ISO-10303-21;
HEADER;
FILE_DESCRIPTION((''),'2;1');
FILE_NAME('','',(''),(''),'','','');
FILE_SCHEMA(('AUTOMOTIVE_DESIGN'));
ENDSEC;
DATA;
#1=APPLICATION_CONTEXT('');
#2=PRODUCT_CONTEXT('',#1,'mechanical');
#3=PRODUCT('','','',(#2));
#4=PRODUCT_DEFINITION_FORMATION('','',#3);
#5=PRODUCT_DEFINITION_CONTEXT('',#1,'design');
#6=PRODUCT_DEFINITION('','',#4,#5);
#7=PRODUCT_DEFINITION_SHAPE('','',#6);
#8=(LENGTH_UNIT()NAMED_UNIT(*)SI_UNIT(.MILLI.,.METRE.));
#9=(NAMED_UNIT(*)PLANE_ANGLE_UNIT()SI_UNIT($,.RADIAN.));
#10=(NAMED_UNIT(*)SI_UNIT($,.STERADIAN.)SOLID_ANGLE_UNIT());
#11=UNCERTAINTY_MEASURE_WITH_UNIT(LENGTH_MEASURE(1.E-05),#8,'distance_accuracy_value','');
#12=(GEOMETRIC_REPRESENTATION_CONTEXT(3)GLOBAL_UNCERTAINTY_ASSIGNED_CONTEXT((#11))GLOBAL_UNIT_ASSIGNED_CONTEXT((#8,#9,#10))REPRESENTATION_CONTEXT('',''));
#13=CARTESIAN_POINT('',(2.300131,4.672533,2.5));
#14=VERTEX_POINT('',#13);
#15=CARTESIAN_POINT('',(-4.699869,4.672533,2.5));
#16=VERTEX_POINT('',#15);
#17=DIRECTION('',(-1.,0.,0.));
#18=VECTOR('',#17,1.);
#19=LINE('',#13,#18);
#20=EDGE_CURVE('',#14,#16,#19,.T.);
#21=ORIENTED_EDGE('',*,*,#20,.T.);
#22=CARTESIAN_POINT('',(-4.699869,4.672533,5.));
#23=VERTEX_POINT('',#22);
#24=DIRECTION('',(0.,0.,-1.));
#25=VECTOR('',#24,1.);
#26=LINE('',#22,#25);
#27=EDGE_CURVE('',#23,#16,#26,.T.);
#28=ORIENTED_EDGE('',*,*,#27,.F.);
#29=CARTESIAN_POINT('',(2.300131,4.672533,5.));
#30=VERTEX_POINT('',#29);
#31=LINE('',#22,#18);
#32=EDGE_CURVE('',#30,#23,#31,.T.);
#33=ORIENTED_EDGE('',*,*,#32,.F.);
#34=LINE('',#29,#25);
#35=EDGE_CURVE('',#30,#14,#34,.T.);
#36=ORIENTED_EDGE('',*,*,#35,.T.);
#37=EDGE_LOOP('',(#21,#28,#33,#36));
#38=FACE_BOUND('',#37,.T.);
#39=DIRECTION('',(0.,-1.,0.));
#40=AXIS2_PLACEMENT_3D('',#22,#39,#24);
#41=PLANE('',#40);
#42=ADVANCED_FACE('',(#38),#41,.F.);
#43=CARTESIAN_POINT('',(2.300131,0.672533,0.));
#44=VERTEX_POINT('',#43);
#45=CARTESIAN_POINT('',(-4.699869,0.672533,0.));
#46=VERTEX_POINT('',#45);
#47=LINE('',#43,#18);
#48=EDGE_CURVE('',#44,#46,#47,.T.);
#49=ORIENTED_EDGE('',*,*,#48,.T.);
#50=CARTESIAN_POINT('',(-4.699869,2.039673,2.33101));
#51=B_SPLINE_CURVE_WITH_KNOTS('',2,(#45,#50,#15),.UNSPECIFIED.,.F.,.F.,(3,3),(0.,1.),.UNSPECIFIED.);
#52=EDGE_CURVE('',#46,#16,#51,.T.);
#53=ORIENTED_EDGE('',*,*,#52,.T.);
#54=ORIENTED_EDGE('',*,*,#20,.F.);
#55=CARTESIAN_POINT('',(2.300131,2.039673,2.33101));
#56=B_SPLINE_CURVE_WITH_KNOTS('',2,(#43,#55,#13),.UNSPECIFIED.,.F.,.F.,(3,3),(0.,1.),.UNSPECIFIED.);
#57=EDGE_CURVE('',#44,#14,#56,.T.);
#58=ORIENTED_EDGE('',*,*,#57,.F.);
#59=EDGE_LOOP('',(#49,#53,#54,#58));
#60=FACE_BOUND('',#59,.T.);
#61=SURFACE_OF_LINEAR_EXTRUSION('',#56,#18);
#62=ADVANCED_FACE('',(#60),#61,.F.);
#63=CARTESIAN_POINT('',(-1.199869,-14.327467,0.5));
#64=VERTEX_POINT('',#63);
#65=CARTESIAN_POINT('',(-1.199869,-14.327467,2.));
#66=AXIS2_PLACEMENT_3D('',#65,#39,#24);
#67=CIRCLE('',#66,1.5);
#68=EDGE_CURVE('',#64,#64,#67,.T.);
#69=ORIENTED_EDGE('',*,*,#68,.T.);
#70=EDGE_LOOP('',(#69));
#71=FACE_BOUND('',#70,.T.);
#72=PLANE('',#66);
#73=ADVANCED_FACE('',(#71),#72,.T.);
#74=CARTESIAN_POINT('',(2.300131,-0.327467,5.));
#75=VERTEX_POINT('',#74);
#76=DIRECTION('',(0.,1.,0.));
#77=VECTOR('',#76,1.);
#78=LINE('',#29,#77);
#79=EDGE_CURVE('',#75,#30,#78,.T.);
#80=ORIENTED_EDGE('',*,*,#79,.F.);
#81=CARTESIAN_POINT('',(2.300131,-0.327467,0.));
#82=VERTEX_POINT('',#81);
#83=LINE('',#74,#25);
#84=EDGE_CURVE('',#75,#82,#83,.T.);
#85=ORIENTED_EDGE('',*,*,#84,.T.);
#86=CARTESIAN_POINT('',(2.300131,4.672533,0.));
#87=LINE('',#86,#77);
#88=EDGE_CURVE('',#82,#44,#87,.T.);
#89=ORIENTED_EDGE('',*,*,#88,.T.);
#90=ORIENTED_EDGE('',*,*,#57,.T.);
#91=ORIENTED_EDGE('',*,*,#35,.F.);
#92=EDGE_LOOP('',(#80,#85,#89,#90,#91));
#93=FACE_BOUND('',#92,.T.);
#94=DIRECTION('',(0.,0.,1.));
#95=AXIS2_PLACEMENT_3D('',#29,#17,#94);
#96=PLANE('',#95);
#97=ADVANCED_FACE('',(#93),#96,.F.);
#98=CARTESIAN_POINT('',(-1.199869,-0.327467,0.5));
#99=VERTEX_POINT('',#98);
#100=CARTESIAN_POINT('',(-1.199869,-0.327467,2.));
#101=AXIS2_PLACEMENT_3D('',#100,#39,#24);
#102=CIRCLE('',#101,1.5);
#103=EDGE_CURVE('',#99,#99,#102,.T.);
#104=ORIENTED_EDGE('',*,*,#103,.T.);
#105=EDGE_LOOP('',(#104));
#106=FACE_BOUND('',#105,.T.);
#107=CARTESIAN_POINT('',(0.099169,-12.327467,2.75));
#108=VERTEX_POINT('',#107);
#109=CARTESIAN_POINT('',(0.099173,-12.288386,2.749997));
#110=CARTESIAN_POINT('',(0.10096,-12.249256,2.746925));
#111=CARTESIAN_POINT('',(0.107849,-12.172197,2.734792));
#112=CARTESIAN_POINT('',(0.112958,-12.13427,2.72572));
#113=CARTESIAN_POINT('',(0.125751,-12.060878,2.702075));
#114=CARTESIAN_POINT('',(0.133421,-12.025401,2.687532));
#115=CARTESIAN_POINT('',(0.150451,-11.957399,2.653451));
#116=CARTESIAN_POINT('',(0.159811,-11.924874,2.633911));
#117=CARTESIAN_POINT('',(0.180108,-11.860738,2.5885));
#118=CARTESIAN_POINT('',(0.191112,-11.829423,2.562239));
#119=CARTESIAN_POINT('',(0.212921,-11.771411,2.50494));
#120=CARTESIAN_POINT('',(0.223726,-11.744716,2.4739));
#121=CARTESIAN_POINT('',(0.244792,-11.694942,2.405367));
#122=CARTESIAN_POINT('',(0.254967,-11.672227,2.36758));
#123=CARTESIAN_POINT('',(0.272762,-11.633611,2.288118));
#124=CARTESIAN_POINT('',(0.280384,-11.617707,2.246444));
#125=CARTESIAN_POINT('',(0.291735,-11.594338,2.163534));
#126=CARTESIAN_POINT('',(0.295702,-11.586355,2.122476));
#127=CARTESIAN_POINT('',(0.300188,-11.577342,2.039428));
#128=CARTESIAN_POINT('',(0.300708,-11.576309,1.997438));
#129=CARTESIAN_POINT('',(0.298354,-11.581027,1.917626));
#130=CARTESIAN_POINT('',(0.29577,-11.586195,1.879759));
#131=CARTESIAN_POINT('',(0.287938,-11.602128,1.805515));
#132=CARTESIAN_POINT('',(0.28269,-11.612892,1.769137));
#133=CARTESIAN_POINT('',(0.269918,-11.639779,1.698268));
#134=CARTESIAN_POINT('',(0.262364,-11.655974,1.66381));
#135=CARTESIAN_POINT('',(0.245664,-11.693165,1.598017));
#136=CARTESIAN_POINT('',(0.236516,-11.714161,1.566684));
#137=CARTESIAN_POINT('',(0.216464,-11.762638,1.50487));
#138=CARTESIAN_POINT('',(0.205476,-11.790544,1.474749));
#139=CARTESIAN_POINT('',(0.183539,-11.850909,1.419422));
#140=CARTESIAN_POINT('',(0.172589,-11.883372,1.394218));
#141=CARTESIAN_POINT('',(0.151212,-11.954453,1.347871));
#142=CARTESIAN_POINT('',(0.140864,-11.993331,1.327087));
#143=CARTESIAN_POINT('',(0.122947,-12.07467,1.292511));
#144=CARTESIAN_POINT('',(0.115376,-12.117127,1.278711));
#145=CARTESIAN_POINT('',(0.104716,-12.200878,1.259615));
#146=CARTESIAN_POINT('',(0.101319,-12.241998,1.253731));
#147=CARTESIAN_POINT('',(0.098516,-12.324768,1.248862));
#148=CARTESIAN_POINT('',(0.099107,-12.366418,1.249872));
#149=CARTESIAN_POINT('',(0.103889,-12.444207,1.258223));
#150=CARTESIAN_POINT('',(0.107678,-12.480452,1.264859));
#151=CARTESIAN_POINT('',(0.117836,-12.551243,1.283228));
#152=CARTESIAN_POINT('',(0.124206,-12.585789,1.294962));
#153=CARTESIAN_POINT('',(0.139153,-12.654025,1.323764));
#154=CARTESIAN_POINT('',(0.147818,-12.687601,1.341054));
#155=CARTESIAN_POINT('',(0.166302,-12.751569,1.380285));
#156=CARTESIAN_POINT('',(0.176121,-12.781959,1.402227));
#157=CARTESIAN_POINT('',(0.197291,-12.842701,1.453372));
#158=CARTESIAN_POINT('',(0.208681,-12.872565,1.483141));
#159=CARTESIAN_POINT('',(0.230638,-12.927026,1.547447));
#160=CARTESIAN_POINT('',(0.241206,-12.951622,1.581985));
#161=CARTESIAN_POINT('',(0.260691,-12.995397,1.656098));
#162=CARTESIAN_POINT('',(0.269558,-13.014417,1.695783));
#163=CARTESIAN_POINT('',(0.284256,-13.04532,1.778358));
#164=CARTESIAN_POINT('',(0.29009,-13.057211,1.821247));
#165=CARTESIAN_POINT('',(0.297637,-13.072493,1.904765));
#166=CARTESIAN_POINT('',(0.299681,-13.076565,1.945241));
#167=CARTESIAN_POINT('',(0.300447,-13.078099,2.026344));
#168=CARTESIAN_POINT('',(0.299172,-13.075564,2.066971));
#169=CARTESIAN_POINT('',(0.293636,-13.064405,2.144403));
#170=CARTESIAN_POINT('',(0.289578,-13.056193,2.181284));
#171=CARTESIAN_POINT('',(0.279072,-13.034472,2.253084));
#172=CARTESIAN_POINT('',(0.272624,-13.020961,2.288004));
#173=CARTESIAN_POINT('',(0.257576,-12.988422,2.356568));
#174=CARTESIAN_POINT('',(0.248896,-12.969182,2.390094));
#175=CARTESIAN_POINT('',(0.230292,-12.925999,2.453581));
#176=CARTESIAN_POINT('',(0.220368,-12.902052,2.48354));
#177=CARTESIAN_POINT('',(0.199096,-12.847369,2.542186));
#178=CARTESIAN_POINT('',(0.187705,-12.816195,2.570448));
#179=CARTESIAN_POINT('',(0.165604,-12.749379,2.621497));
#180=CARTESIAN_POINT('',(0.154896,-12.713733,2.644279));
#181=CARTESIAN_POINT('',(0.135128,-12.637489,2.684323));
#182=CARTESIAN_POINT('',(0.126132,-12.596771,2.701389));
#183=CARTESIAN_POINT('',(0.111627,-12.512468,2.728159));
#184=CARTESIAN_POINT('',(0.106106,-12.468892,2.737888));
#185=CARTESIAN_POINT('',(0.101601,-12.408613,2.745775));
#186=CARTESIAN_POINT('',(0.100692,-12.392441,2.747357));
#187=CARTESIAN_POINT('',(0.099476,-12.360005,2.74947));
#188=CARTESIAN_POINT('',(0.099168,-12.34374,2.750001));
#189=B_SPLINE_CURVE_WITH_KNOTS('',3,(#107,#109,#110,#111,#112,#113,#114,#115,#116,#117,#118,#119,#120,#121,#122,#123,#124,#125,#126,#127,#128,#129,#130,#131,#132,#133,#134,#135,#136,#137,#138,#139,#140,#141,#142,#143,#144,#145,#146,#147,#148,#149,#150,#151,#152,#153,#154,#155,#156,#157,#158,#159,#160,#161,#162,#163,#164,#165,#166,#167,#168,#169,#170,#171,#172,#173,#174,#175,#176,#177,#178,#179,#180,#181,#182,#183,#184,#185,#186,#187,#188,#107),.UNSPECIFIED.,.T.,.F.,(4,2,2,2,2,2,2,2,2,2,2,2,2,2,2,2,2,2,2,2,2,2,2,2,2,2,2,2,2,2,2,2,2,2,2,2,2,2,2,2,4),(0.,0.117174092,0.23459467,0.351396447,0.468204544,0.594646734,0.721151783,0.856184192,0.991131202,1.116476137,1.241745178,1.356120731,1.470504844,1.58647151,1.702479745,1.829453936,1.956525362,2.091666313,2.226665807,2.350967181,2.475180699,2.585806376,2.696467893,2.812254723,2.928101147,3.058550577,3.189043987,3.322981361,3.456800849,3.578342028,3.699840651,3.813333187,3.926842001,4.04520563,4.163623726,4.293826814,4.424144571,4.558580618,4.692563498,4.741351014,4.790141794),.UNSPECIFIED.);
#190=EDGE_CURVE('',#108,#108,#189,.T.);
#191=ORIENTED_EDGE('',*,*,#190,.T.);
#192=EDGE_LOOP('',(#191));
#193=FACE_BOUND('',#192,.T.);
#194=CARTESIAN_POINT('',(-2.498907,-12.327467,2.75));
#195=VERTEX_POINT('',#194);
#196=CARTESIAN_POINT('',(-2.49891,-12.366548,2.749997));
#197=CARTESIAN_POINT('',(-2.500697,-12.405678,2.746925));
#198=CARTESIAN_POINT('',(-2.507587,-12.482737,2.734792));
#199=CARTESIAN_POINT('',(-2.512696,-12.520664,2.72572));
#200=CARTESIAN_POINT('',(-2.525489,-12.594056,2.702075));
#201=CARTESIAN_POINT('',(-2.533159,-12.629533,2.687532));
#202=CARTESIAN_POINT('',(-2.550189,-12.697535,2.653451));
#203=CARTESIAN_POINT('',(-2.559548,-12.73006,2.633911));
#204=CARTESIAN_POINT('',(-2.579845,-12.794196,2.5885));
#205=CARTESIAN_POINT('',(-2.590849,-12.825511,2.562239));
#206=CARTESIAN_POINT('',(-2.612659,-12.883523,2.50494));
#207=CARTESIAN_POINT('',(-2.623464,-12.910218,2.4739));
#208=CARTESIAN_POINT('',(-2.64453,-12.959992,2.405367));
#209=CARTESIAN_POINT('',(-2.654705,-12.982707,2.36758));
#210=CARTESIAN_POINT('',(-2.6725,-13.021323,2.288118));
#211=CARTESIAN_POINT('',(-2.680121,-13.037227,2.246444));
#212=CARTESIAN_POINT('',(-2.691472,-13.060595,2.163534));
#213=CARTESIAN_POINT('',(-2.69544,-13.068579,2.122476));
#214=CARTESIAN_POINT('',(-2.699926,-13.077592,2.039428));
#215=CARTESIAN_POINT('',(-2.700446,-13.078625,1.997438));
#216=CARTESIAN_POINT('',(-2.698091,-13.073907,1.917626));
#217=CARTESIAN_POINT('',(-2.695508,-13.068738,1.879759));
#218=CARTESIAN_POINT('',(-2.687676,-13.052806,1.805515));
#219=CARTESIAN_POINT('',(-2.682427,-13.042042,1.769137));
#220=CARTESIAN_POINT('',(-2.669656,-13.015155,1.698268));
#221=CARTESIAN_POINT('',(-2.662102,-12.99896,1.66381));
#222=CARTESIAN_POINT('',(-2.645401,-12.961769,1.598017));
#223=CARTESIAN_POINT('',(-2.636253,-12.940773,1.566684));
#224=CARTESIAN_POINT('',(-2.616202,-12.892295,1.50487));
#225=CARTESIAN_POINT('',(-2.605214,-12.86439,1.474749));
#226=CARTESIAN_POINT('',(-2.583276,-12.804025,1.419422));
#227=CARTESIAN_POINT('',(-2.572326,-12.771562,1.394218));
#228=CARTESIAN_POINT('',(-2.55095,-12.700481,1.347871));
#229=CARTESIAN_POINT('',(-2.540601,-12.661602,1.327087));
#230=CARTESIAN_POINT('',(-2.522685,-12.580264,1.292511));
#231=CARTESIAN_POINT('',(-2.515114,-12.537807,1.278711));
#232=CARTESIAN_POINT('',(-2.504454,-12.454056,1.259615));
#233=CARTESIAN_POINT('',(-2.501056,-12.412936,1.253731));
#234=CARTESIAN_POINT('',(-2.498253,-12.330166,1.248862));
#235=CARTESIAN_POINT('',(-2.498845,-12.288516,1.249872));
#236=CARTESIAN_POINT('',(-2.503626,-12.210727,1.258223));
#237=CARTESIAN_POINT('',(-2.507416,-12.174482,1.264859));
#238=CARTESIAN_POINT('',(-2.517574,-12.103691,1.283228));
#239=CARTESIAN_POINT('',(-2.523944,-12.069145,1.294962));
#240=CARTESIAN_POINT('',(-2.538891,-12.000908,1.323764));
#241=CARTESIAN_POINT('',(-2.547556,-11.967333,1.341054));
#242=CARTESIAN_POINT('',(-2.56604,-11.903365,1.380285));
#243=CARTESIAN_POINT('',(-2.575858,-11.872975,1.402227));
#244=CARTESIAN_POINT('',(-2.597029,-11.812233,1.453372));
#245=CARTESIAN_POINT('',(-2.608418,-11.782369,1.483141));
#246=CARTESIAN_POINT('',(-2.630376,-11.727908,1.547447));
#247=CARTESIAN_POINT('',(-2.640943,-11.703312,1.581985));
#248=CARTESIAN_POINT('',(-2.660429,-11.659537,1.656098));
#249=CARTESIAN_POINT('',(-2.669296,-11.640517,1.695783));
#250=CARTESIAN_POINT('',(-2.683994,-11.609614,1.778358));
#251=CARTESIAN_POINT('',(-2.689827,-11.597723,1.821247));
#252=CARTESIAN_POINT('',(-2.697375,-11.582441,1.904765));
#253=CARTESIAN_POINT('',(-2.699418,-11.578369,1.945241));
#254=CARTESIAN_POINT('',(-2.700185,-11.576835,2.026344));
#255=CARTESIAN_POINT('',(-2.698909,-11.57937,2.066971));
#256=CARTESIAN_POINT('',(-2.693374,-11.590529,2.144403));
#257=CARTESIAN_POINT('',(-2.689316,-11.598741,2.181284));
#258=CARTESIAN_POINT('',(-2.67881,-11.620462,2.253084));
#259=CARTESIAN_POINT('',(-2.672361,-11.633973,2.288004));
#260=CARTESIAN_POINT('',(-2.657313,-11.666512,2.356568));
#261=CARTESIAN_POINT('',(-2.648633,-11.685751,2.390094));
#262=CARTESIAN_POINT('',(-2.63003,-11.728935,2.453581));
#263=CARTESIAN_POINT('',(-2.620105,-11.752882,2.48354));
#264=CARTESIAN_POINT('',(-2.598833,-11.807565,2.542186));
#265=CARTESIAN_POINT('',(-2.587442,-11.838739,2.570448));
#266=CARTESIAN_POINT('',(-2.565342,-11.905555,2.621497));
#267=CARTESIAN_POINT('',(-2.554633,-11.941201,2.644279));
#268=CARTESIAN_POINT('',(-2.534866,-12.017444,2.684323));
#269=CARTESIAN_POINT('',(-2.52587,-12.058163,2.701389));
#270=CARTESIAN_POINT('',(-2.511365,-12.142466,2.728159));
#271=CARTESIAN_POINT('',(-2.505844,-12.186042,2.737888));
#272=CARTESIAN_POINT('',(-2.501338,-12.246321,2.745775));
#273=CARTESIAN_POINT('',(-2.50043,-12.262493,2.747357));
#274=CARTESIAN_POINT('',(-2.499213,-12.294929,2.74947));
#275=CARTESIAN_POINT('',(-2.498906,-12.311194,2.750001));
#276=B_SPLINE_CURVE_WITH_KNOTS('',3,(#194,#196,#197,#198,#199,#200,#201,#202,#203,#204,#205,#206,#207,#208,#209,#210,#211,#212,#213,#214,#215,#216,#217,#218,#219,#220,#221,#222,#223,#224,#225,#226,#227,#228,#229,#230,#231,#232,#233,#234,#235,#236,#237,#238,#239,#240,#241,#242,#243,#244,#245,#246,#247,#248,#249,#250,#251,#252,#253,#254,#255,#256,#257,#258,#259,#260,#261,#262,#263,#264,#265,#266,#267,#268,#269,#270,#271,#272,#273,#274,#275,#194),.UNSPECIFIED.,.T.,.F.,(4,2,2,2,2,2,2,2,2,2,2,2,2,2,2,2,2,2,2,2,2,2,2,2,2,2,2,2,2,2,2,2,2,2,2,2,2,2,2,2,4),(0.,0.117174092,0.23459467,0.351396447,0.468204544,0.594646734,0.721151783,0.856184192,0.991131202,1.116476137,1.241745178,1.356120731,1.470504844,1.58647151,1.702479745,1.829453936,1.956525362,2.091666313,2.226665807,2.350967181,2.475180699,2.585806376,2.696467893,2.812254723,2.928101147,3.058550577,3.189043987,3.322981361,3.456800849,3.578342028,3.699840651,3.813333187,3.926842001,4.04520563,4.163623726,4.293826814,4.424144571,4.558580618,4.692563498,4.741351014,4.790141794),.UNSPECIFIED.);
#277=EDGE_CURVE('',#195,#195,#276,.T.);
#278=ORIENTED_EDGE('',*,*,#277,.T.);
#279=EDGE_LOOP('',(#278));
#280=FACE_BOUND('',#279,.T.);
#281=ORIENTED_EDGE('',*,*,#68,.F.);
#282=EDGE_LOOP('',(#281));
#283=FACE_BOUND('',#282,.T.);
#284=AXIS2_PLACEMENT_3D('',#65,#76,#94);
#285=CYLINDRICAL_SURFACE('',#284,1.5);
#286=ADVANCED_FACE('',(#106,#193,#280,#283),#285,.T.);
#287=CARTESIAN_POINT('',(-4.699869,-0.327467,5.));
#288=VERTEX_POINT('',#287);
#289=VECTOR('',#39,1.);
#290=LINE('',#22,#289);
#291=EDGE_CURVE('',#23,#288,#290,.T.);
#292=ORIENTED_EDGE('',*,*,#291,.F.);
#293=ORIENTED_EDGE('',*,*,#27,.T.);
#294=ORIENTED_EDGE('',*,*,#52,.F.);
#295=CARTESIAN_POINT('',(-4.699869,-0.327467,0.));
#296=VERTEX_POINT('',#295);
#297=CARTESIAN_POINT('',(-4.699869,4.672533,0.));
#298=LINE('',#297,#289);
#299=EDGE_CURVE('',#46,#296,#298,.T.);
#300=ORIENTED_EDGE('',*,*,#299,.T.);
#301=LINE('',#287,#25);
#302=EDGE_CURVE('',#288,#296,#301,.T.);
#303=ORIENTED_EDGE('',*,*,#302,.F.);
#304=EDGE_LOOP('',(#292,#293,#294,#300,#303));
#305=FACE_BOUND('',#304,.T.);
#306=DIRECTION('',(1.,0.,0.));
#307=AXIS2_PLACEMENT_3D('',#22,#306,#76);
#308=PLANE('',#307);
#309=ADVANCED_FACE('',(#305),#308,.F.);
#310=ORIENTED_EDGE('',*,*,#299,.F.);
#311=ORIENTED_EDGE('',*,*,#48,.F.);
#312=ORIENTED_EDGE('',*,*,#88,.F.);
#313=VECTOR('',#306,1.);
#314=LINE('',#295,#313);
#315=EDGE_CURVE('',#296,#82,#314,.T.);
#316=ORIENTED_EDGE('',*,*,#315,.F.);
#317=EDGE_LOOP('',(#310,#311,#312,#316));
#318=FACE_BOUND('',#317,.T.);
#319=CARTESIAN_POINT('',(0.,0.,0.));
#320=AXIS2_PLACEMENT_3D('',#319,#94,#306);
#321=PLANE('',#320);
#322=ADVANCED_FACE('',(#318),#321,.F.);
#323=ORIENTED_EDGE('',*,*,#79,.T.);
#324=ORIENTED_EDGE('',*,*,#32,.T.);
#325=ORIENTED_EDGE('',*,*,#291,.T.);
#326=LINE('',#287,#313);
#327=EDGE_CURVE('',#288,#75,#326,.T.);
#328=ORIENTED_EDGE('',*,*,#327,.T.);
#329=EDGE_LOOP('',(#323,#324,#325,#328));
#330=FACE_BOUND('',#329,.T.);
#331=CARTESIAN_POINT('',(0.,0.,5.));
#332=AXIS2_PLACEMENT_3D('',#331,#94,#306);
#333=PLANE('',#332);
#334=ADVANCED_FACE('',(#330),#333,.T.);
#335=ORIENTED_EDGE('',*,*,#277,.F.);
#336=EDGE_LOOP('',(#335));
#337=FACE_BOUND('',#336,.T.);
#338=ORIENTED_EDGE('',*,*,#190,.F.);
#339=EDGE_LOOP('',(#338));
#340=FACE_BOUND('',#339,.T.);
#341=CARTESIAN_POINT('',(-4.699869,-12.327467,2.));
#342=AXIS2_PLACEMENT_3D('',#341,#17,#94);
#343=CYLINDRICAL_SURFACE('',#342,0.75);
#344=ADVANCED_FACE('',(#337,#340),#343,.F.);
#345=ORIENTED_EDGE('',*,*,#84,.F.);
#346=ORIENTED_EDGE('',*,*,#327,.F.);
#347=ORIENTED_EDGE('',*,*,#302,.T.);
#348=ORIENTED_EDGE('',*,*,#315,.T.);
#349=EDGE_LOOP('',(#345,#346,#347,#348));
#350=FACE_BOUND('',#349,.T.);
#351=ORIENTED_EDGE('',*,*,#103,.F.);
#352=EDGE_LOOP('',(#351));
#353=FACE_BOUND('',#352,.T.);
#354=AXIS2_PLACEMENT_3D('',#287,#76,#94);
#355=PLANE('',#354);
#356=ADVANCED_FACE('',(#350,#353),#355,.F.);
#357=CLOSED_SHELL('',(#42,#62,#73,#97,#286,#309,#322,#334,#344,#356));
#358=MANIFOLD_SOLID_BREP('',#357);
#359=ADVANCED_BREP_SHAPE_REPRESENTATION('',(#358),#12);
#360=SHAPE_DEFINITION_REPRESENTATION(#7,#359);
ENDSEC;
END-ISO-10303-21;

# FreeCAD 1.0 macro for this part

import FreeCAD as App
import Part
import Sketcher

V = App.Vector


def add_polygon(sketch, points):
    """Adds a closed chain of lines whose ends are joined by coincident constraints."""
    first, n = sketch.GeometryCount, len(points)
    for a, b in zip(points, points[1:] + points[:1]):
        sketch.addGeometry(Part.LineSegment(App.Vector(*a, 0), App.Vector(*b, 0)), False)
    for i in range(n):
        sketch.addConstraint(Sketcher.Constraint("Coincident", first + i, 2, first + (i + 1) % n, 1))

doc = App.newDocument("Part")
body = doc.addObject("PartDesign::Body", "Body")

# Sketch on XY plane
sketch1 = body.newObject("Sketcher::SketchObject", "Sketch")
sketch1.AttachmentSupport = (doc.getObject("XY_Plane"), [""])
sketch1.MapMode = "FlatFace"
add_polygon(sketch1, [(-5, 5), (-5, 0), (2, 0), (2, 5)])  # lines 0-3
sketch1.addConstraint([
    Sketcher.Constraint("Vertical", 0),
    Sketcher.Constraint("Horizontal", 1),
    Sketcher.Constraint("Vertical", 2),
    Sketcher.Constraint("Horizontal", 3),
    Sketcher.Constraint("DistanceX", 1, 1, 1, 2, 7.0),
    Sketcher.Constraint("DistanceY", 0, 2, 0, 1, 5.0),
    Sketcher.Constraint("DistanceX", 0, 2, -1, 1, 4.699869),
    Sketcher.Constraint("DistanceY", 0, 2, -1, 1, 0.327467),
])
pad1 = body.newObject("PartDesign::Pad", "Pad")
pad1.Profile = sketch1
pad1.Length = 5

# Sketch on YZ plane
sketch2 = body.newObject("Sketcher::SketchObject", "Sketch001")
sketch2.AttachmentSupport = (doc.getObject("YZ_Plane"), [""])
sketch2.MapMode = "FlatFace"
sketch2.AttachmentOffset = App.Placement(V(0, 0, -4.699869), App.Rotation())
sketch2.addGeometry([
    Part.LineSegment(V(4.672533, 2.5, 0), V(4.672533, 0, 0)),
    Part.LineSegment(V(4.672533, 0, 0), V(0.672533, 0, 0)),
    Part.BSplineCurve([V(0.672533, 0, 0), V(2.039673, 2.33101, 0), V(4.672533, 2.5, 0)], [3, 3], [0, 1], False, 2, [1, 1, 1], False),
], False)
sketch2.addConstraint([
    Sketcher.Constraint("Block", 2),
    Sketcher.Constraint("Coincident", 0, 2, 1, 1),
    Sketcher.Constraint("Coincident", 1, 2, 2, 1),
    Sketcher.Constraint("Coincident", 2, 2, 0, 1),
    Sketcher.Constraint("Vertical", 0),
    Sketcher.Constraint("Horizontal", 1),
])
pocket1 = body.newObject("PartDesign::Pocket", "Pocket")
pocket1.Profile = sketch2
pocket1.Length = 7
pocket1.Reversed = True

# Sketch on XZ plane
sketch3 = body.newObject("Sketcher::SketchObject", "Sketch002")
sketch3.AttachmentSupport = (doc.getObject("XZ_Plane"), [""])
sketch3.MapMode = "FlatFace"
sketch3.AttachmentOffset = App.Placement(V(0, 0, 0.327467), App.Rotation())
sketch3.addGeometry(Part.Circle(V(-1.2, 2, 0), V(0, 0, 1), 1.5), False)
sketch3.addConstraint([
    Sketcher.Constraint("Diameter", 0, 3.0),
    Sketcher.Constraint("DistanceY", -1, 1, 0, 3, 2.0),
    Sketcher.Constraint("DistanceX", 0, 3, -1, 1, 1.199869),
])
pad2 = body.newObject("PartDesign::Pad", "Pad001")
pad2.Profile = sketch3
pad2.Length = 14

# Sketch on YZ plane
sketch4 = body.newObject("Sketcher::SketchObject", "Sketch003")
sketch4.AttachmentSupport = (doc.getObject("YZ_Plane"), [""])
sketch4.MapMode = "FlatFace"
sketch4.AttachmentOffset = App.Placement(V(0, 0, -4.699869), App.Rotation())
sketch4.addGeometry(Part.Circle(V(-12.3, 2, 0), V(0, 0, 1), 0.8), False)
sketch4.addConstraint([
    Sketcher.Constraint("Diameter", 0, 1.5),
    Sketcher.Constraint("DistanceY", -1, 1, 0, 3, 2.0),
    Sketcher.Constraint("DistanceX", 0, 3, -1, 1, 12.327467),
])
doc.recompute()
hole = body.newObject("PartDesign::Hole", "Hole")
hole.Profile = sketch4
hole.ThreadType = "None"
hole.Diameter = 1.5
hole.DepthType = "ThroughAll"
hole.Reversed = True

doc.recompute()
